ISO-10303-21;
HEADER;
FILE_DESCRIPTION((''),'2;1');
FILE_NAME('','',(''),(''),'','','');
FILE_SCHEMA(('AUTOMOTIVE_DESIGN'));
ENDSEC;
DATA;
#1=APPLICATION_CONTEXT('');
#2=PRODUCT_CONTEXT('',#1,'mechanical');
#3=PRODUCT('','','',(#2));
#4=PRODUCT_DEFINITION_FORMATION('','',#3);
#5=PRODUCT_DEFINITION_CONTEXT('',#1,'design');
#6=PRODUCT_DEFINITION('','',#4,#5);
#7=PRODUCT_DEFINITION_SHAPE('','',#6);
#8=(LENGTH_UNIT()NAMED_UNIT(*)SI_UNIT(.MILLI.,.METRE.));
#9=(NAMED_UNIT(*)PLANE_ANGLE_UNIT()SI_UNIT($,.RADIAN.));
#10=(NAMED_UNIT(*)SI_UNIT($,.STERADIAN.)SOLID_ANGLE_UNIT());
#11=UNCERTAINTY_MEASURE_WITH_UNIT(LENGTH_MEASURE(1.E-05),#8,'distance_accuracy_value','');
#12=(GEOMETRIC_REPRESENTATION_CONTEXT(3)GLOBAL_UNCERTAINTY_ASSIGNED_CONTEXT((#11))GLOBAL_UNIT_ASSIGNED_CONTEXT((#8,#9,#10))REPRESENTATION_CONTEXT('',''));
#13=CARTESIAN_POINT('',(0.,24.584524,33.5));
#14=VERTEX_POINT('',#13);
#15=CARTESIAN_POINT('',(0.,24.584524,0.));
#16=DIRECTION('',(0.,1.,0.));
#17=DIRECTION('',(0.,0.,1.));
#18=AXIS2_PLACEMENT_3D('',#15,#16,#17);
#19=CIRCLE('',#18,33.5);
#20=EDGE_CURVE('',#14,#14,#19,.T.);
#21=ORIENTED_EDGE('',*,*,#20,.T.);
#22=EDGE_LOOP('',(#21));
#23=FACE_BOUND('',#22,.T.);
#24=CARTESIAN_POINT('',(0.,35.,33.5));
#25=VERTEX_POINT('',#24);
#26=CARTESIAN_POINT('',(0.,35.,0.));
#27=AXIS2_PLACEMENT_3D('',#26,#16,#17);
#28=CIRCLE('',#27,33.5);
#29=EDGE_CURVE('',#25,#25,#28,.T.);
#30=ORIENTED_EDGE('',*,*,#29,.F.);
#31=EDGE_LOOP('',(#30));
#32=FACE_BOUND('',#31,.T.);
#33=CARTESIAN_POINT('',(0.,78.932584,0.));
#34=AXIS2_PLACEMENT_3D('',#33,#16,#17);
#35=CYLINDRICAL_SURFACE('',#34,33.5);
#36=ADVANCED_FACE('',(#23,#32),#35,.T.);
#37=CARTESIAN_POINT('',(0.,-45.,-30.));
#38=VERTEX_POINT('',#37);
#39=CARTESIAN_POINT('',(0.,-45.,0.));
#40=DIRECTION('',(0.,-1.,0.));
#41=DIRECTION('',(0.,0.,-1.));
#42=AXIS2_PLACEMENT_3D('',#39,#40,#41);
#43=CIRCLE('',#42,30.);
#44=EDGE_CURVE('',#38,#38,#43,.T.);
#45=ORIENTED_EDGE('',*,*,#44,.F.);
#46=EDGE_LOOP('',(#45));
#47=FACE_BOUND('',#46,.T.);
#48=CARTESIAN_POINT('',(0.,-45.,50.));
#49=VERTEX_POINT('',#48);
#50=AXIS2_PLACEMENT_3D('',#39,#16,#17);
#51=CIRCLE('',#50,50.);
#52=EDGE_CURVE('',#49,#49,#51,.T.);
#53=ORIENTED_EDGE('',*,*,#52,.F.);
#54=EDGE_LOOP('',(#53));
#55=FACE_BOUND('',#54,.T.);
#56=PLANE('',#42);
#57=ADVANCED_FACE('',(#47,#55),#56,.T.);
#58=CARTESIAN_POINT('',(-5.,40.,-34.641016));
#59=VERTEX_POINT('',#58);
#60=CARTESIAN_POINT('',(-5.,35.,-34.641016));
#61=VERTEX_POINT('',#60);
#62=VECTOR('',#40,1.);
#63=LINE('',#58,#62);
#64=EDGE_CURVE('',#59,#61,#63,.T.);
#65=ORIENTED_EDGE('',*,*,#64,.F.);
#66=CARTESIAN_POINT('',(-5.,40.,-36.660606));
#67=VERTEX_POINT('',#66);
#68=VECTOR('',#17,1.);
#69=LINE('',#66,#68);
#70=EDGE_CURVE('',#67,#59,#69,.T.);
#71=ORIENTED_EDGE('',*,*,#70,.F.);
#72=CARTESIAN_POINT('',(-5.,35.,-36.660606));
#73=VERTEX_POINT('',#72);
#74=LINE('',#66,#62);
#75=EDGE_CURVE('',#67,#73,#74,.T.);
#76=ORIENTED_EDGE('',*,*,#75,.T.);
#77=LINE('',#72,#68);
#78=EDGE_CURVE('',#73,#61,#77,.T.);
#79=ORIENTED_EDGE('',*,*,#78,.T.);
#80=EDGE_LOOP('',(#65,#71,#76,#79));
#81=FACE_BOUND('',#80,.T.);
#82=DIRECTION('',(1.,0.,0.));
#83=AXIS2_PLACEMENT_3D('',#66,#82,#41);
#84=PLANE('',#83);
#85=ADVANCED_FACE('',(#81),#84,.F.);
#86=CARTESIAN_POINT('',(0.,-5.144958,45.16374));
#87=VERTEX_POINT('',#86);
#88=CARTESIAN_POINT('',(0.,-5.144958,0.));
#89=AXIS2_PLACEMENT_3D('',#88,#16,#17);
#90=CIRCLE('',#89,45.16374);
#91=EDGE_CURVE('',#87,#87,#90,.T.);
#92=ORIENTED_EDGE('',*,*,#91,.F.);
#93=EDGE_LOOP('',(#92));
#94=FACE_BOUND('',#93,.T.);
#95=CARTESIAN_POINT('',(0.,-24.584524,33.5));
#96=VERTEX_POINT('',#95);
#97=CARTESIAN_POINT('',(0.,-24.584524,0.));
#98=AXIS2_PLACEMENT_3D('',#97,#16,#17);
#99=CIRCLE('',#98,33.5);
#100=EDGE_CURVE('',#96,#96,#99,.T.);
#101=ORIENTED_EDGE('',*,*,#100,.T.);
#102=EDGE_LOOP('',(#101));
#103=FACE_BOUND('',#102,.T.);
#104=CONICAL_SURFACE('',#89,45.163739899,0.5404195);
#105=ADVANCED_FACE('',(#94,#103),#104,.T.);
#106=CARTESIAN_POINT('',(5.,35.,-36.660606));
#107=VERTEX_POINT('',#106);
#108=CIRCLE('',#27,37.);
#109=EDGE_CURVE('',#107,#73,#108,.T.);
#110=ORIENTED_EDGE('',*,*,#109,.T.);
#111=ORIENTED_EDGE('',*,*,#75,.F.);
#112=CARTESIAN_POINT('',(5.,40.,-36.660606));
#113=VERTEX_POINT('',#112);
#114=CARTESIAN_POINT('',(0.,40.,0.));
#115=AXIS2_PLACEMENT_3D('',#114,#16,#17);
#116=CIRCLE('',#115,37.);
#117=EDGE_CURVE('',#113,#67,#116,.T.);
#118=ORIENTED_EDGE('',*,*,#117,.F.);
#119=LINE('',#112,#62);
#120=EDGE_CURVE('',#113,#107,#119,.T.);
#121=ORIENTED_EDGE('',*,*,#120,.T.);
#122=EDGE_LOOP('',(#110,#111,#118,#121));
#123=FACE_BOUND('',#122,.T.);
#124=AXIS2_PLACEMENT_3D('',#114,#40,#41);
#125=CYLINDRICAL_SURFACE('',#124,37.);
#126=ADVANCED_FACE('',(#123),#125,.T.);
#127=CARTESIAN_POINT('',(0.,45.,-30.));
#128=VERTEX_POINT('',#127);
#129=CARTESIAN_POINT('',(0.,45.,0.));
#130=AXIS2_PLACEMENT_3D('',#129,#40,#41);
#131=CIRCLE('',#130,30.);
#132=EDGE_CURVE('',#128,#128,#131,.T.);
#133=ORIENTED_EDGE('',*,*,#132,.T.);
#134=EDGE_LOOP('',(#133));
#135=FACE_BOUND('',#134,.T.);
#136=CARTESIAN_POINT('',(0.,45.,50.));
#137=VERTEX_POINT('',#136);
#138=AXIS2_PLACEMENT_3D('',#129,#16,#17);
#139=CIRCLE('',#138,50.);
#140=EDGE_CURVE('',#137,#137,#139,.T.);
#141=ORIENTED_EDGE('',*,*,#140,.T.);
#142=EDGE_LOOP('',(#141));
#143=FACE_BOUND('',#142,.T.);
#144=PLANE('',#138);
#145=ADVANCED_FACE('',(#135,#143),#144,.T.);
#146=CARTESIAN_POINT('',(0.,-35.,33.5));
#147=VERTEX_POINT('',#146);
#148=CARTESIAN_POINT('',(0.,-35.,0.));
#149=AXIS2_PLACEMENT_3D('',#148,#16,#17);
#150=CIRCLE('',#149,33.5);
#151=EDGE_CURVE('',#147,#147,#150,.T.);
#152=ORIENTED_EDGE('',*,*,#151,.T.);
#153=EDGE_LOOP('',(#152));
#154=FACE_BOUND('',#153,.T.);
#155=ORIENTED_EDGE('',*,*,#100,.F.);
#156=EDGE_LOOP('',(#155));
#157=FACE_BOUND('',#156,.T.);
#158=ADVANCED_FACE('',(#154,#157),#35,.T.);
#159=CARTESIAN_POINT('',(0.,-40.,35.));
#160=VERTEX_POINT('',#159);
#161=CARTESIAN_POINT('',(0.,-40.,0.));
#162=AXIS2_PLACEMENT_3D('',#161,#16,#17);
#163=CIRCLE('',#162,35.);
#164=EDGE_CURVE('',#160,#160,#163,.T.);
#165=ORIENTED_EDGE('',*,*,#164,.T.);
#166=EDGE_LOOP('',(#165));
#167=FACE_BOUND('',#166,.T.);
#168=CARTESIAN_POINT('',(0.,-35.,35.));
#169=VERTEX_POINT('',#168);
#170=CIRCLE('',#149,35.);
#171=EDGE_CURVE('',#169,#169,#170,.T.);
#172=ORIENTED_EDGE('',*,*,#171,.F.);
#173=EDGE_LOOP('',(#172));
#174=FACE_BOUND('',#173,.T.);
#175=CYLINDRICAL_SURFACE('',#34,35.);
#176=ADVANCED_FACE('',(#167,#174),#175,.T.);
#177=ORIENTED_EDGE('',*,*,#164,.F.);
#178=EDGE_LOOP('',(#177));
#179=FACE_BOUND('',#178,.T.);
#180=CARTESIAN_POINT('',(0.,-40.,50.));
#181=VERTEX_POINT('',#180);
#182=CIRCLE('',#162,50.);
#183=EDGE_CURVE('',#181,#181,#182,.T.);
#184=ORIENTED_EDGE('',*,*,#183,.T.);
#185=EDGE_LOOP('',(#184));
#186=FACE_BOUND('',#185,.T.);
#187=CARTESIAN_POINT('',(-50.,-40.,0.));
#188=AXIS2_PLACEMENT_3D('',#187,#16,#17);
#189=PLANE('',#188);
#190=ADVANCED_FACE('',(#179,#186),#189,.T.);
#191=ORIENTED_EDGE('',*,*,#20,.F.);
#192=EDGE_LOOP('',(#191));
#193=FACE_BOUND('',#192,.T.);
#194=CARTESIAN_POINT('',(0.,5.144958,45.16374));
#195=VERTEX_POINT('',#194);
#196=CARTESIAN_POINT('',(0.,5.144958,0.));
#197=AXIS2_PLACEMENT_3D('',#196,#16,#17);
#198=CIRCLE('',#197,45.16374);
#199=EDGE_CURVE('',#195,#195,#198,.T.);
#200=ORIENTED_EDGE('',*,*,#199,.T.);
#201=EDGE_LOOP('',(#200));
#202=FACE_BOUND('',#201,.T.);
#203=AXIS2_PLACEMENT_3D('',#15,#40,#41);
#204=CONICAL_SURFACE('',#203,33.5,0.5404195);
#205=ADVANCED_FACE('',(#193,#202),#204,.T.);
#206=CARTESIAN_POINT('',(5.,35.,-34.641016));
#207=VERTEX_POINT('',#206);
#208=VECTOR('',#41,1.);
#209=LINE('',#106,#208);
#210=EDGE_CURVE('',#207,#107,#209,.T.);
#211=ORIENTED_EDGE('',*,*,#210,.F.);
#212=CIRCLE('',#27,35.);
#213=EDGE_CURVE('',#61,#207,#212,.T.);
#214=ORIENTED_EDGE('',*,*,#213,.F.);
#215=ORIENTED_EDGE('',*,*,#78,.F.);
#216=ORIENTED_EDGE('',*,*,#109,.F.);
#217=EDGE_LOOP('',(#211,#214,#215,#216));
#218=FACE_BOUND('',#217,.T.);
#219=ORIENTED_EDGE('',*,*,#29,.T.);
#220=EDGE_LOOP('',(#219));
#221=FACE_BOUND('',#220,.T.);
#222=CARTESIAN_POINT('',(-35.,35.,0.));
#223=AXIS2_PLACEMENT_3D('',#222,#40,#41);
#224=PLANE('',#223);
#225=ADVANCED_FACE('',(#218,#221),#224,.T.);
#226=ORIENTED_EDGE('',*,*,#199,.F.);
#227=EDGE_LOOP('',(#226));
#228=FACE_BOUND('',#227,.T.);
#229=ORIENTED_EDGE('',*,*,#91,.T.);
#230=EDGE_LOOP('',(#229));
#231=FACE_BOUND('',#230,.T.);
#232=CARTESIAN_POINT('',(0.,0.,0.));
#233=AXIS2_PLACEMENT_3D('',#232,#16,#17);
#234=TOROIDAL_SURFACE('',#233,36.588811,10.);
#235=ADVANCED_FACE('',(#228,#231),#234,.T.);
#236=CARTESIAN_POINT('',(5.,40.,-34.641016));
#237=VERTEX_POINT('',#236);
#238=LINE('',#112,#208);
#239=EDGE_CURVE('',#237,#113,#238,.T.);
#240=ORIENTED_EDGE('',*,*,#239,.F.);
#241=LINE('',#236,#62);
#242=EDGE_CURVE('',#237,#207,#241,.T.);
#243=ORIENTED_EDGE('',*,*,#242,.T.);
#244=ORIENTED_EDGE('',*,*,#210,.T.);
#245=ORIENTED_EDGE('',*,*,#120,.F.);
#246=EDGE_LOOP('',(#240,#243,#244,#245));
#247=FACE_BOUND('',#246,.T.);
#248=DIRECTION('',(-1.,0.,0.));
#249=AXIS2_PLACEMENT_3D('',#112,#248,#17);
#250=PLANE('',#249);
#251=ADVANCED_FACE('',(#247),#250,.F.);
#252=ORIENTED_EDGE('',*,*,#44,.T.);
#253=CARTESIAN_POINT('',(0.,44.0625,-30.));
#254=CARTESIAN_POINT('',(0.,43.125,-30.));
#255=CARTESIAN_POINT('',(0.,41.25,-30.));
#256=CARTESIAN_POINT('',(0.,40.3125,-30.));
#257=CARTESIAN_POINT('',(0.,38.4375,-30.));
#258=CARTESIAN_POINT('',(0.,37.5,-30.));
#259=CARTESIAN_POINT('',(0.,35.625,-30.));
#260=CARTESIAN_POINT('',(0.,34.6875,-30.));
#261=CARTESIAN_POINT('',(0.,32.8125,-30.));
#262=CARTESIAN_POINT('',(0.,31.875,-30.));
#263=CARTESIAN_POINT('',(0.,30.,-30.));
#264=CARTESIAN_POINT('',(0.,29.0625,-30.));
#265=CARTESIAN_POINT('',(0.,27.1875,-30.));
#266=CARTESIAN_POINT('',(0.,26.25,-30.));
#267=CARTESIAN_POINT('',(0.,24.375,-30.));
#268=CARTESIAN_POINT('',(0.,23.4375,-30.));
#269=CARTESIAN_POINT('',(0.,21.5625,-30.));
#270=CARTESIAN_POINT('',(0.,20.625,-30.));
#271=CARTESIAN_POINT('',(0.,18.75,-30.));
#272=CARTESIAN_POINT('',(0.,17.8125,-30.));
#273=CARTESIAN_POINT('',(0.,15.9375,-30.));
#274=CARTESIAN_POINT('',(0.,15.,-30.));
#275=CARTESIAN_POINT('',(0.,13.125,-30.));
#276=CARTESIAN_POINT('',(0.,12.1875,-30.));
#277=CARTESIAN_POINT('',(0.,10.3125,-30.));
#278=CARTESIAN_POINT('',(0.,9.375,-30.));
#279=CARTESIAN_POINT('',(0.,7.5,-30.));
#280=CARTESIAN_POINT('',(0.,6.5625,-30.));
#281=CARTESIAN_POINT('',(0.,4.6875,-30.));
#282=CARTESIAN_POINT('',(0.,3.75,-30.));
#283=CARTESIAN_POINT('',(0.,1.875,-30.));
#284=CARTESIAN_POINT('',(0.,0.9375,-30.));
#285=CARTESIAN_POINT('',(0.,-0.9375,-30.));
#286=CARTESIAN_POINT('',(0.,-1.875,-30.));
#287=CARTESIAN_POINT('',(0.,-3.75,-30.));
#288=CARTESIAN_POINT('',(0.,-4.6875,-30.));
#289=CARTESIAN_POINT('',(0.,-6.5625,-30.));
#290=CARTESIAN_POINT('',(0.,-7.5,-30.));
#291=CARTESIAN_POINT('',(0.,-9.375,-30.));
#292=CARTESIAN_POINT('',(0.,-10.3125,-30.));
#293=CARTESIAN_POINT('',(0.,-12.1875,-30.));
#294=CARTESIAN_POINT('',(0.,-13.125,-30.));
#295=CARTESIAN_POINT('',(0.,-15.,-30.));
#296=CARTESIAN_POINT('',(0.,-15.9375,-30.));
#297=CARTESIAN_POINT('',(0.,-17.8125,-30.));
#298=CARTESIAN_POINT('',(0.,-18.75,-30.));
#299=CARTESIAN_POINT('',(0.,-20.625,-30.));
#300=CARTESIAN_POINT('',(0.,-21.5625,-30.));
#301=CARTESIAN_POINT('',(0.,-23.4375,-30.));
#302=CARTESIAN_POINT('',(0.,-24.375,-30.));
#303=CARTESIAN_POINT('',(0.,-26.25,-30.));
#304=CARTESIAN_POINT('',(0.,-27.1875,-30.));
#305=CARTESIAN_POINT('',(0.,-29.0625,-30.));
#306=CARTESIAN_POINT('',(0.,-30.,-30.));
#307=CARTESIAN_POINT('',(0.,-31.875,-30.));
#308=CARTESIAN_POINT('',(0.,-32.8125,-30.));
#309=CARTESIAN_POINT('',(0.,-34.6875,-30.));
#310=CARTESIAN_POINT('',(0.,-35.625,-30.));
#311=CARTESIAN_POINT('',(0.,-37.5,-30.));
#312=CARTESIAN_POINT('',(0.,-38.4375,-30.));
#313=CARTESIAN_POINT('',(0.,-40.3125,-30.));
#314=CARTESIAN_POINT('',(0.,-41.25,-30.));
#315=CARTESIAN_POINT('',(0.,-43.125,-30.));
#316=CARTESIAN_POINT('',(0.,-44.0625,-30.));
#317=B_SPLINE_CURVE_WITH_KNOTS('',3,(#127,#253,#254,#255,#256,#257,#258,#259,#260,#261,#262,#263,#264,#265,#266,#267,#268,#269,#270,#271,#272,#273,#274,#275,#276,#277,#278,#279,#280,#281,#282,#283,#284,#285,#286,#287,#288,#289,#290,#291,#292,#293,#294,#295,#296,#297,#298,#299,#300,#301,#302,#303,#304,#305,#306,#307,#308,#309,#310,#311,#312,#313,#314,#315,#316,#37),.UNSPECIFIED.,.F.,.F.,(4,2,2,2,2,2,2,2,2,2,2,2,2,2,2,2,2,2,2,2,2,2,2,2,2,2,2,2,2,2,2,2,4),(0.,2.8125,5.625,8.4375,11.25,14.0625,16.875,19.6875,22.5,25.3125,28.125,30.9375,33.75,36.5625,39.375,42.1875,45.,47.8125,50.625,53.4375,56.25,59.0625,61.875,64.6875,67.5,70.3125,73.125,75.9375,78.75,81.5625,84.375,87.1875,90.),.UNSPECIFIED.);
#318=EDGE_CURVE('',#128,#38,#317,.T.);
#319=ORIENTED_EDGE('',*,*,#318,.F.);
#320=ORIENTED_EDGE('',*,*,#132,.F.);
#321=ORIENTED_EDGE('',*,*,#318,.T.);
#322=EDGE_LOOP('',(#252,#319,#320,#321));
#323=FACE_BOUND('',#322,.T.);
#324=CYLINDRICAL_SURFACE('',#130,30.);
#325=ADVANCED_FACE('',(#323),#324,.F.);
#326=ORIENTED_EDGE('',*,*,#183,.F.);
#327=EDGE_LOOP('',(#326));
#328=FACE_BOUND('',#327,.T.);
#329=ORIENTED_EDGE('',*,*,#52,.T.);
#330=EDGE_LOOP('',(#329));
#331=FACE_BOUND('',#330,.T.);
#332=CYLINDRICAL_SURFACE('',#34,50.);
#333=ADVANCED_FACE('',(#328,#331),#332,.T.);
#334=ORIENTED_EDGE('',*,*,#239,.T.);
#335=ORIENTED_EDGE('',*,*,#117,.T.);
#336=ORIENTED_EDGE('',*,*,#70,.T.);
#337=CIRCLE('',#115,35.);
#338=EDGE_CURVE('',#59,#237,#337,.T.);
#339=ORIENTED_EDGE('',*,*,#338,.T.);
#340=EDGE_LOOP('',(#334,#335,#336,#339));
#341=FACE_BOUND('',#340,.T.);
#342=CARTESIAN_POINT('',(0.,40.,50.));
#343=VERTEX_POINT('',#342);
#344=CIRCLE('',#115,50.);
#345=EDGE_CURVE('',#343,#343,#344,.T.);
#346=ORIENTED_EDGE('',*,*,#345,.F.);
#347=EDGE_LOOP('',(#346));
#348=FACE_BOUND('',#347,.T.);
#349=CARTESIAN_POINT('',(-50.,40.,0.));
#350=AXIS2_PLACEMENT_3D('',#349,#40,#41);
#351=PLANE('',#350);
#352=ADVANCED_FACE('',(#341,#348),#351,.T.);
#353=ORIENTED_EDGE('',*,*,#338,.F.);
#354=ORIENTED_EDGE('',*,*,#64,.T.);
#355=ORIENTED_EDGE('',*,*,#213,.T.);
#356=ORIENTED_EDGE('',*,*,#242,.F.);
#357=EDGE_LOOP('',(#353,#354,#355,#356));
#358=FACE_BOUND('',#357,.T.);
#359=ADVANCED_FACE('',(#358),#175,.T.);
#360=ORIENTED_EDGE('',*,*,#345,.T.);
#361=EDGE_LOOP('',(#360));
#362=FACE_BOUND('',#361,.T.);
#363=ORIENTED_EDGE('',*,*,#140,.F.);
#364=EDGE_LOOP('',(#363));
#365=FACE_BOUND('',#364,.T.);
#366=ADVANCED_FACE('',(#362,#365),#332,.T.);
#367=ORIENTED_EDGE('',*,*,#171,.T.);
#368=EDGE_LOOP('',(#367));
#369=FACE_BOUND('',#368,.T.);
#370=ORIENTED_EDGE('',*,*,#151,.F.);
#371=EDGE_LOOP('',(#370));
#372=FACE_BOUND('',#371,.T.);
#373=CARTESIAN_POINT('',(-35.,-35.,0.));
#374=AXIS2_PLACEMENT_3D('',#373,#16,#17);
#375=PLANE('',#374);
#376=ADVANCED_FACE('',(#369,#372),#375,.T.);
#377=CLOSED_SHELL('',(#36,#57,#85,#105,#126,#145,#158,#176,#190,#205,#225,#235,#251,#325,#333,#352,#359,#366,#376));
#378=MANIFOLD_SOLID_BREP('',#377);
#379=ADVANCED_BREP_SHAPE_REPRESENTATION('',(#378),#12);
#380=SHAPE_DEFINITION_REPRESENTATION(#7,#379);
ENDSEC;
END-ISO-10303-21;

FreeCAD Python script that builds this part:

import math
import FreeCAD as App
import Part
import Sketcher

V = App.Vector
Q = App.Units.Quantity

doc = App.newDocument("Part")
params = doc.addObject("Spreadsheet::Sheet", "Params")
for row, (alias, value) in enumerate([
    ("sketch1_radius", "10 mm"),
    ("sketch1_width", "50 mm"),
    ("sketch1_width2", "15 mm"),
    ("sketch1_height", "5 mm"),
    ("sketch1_height2", "90 mm"),
    ("revolution_angle", "360 deg"),
    ("sketch2_radius", "35 mm"),
    ("sketch2_radius2", "37 mm"),
    ("pad1_length", "5 mm"),
    ("sketch3_diameter", "60 mm"),
], start=1):
    params.set(f"A{row}", alias)
    params.set(f"B{row}", "=" + value)
    params.setAlias(f"B{row}", alias)

body = doc.addObject("PartDesign::Body", "Body")

# Sketch on XY plane
sketch1 = body.newObject("Sketcher::SketchObject", "Sketch")
sketch1.AttachmentSupport = (doc.getObject("XY_Plane"), [""])
sketch1.MapMode = "FlatFace"
sketch1.addGeometry(Part.LineSegment(V(0, 45, 0), V(-50, 45, 0)), False)
sketch1.addGeometry(Part.LineSegment(V(-50, 45, 0), V(-50, 40, 0)), False)
sketch1.addGeometry(Part.LineSegment(V(-50, 40, 0), V(-35, 40, 0)), False)
sketch1.addGeometry(Part.LineSegment(V(-35, 40, 0), V(-35, 35, 0)), False)
sketch1.addGeometry(Part.LineSegment(V(-35, 35, 0), V(-33.5, 35, 0)), False)
sketch1.addGeometry(Part.LineSegment(V(-33.5, 35, 0), V(-33.5, 24.6, 0)), False)
sketch1.addGeometry(Part.LineSegment(V(-33.5, 24.6, 0), V(-45.2, 5.1, 0)), False)
sketch1.addGeometry(Part.ArcOfCircle(Part.Circle(V(-36.6, 0, 0), V(0, 0, 1), 10), math.radians(149), math.radians(211)), False)
sketch1.addGeometry(Part.LineSegment(V(-45.2, -5.1, 0), V(-33.5, -24.6, 0)), False)
sketch1.addGeometry(Part.LineSegment(V(-33.5, -24.6, 0), V(-33.5, -35, 0)), False)
sketch1.addGeometry(Part.LineSegment(V(-33.5, -35, 0), V(-35, -35, 0)), False)
sketch1.addGeometry(Part.LineSegment(V(-35, -35, 0), V(-35, -40, 0)), False)
sketch1.addGeometry(Part.LineSegment(V(-35, -40, 0), V(-50, -40, 0)), False)
sketch1.addGeometry(Part.LineSegment(V(-50, -40, 0), V(-50, -45, 0)), False)
sketch1.addGeometry(Part.LineSegment(V(-50, -45, 0), V(0, -45, 0)), False)
sketch1.addGeometry(Part.LineSegment(V(0, -45, 0), V(0, 45, 0)), False)
sketch1.addConstraint(Sketcher.Constraint("Coincident", 0, 2, 1, 1))
sketch1.addConstraint(Sketcher.Constraint("Coincident", 1, 2, 2, 1))
sketch1.addConstraint(Sketcher.Constraint("Coincident", 2, 2, 3, 1))
sketch1.addConstraint(Sketcher.Constraint("Coincident", 3, 2, 4, 1))
sketch1.addConstraint(Sketcher.Constraint("Coincident", 4, 2, 5, 1))
sketch1.addConstraint(Sketcher.Constraint("Coincident", 5, 2, 6, 1))
sketch1.addConstraint(Sketcher.Constraint("Tangent", 6, 2, 7, 1))
sketch1.addConstraint(Sketcher.Constraint("Tangent", 7, 2, 8, 1))
sketch1.addConstraint(Sketcher.Constraint("Coincident", 8, 2, 9, 1))
sketch1.addConstraint(Sketcher.Constraint("Coincident", 9, 2, 10, 1))
sketch1.addConstraint(Sketcher.Constraint("Coincident", 10, 2, 11, 1))
sketch1.addConstraint(Sketcher.Constraint("Coincident", 11, 2, 12, 1))
sketch1.addConstraint(Sketcher.Constraint("Coincident", 12, 2, 13, 1))
sketch1.addConstraint(Sketcher.Constraint("Coincident", 13, 2, 14, 1))
sketch1.addConstraint(Sketcher.Constraint("Coincident", 14, 2, 15, 1))
sketch1.addConstraint(Sketcher.Constraint("Coincident", 15, 2, 0, 1))
sketch1.addConstraint(Sketcher.Constraint("Horizontal", 0))
sketch1.addConstraint(Sketcher.Constraint("Vertical", 1))
sketch1.addConstraint(Sketcher.Constraint("Horizontal", 2))
sketch1.addConstraint(Sketcher.Constraint("Vertical", 3))
sketch1.addConstraint(Sketcher.Constraint("Horizontal", 4))
sketch1.addConstraint(Sketcher.Constraint("Vertical", 5))
sketch1.addConstraint(Sketcher.Constraint("Vertical", 9))
sketch1.addConstraint(Sketcher.Constraint("Horizontal", 10))
sketch1.addConstraint(Sketcher.Constraint("Vertical", 11))
sketch1.addConstraint(Sketcher.Constraint("Horizontal", 12))
sketch1.addConstraint(Sketcher.Constraint("Vertical", 13))
sketch1.addConstraint(Sketcher.Constraint("Horizontal", 14))
sketch1.addConstraint(Sketcher.Constraint("Vertical", 15))
sketch1.addConstraint(Sketcher.Constraint("Symmetric", 14, 2, 15, 2, -1, 1))
sketch1.addConstraint(Sketcher.Constraint("Symmetric", 6, 2, 7, 2, -1))
sketch1.addConstraint(Sketcher.Constraint("Symmetric", 4, 2, 9, 2, -1))
sketch1.addConstraint(Sketcher.Constraint("Symmetric", 2, 2, 11, 2, -1))
sketch1.addConstraint(Sketcher.Constraint("Vertical", 1, 2, 12, 2))
sketch1.addConstraint(Sketcher.Constraint("Equal", 1, 3))
sketch1.addConstraint(Sketcher.Constraint("Radius", 7, Q("10 mm")))
sketch1.addConstraint(Sketcher.Constraint("DistanceX", 0, 2, 0, 1, Q("50 mm")))
sketch1.addConstraint(Sketcher.Constraint("DistanceX", 2, 1, 2, 2, Q("15 mm")))
sketch1.addConstraint(Sketcher.Constraint("DistanceY", 1, 2, 1, 1, Q("5 mm")))
sketch1.addConstraint(Sketcher.Constraint("DistanceY", 15, 1, 15, 2, Q("90 mm")))
sketch1.addConstraint(Sketcher.Constraint("DistanceX", 4, 1, 4, 2, Q("1.5 mm")))
sketch1.addConstraint(Sketcher.Constraint("DistanceY", 5, 2, 5, 1, Q("10.415476 mm")))
sketch1.addConstraint(Sketcher.Constraint("DistanceX", 7, 3, -1, 1, Q("36.588811 mm")))
sketch1.setExpression("Constraints[35]", "Params.sketch1_radius")
sketch1.setExpression("Constraints[36]", "Params.sketch1_width")
sketch1.setExpression("Constraints[37]", "Params.sketch1_width2")
sketch1.setExpression("Constraints[38]", "Params.sketch1_height")
sketch1.setExpression("Constraints[39]", "Params.sketch1_height2")
revolution = body.newObject("PartDesign::Revolution", "Revolution")
revolution.Profile = sketch1
revolution.ReferenceAxis = (sketch1, ["V_Axis"])
revolution.setExpression("Angle", "Params.revolution_angle")

# Sketch on XZ plane
sketch2 = body.newObject("Sketcher::SketchObject", "Sketch001")
sketch2.AttachmentSupport = (doc.getObject("XZ_Plane"), [""])
sketch2.MapMode = "FlatFace"
sketch2.AttachmentOffset = App.Placement(V(0, 0, -35), App.Rotation())
sketch2.addGeometry(Part.LineSegment(V(-5, -36.7, 0), V(-5, -34.6, 0)), False)
sketch2.addGeometry(Part.ArcOfCircle(Part.Circle(V(0, 0, 0), V(0, 0, 1), 35), math.radians(-98.21), math.radians(-81.79)), False)
sketch2.addGeometry(Part.LineSegment(V(5, -34.6, 0), V(5, -36.7, 0)), False)
sketch2.addGeometry(Part.ArcOfCircle(Part.Circle(V(0, 0, 0), V(0, 0, 1), 37), math.radians(-97.77), math.radians(-82.23)), False)
sketch2.addConstraint(Sketcher.Constraint("Coincident", 0, 2, 1, 1))
sketch2.addConstraint(Sketcher.Constraint("Coincident", 1, 2, 2, 1))
sketch2.addConstraint(Sketcher.Constraint("Coincident", 2, 2, 3, 2))
sketch2.addConstraint(Sketcher.Constraint("Coincident", 3, 1, 0, 1))
sketch2.addConstraint(Sketcher.Constraint("Vertical", 0))
sketch2.addConstraint(Sketcher.Constraint("Vertical", 2))
sketch2.addConstraint(Sketcher.Constraint("Coincident", 1, 3, -1, 1))
sketch2.addConstraint(Sketcher.Constraint("Coincident", 3, 3, -1, 1))
sketch2.addConstraint(Sketcher.Constraint("Horizontal", 0, 2, 1, 2))
sketch2.addConstraint(Sketcher.Constraint("Radius", 1, Q("35 mm")))
sketch2.addConstraint(Sketcher.Constraint("Radius", 3, Q("37 mm")))
sketch2.addConstraint(Sketcher.Constraint("DistanceX", 0, 2, -1, 1, Q("5 mm")))
sketch2.setExpression("Constraints[9]", "Params.sketch2_radius")
sketch2.setExpression("Constraints[10]", "Params.sketch2_radius2")
pad1 = body.newObject("PartDesign::Pad", "Pad")
pad1.Profile = sketch2
pad1.setExpression("Length", "Params.pad1_length")
pad1.Reversed = True

# Sketch on XZ plane
sketch3 = body.newObject("Sketcher::SketchObject", "Sketch002")
sketch3.AttachmentSupport = (doc.getObject("XZ_Plane"), [""])
sketch3.MapMode = "FlatFace"
sketch3.AttachmentOffset = App.Placement(V(0, 0, 45), App.Rotation())
sketch3.addGeometry(Part.Circle(V(0, 0, 0), V(0, 0, 1), 30), False)
sketch3.addConstraint(Sketcher.Constraint("Coincident", 0, 3, -1, 1))
sketch3.addConstraint(Sketcher.Constraint("Diameter", 0, Q("60 mm")))
sketch3.setExpression("Constraints[1]", "Params.sketch3_diameter")
pocket1 = body.newObject("PartDesign::Pocket", "Pocket")
pocket1.Profile = sketch3
pocket1.Type = "ThroughAll"

doc.recompute()
